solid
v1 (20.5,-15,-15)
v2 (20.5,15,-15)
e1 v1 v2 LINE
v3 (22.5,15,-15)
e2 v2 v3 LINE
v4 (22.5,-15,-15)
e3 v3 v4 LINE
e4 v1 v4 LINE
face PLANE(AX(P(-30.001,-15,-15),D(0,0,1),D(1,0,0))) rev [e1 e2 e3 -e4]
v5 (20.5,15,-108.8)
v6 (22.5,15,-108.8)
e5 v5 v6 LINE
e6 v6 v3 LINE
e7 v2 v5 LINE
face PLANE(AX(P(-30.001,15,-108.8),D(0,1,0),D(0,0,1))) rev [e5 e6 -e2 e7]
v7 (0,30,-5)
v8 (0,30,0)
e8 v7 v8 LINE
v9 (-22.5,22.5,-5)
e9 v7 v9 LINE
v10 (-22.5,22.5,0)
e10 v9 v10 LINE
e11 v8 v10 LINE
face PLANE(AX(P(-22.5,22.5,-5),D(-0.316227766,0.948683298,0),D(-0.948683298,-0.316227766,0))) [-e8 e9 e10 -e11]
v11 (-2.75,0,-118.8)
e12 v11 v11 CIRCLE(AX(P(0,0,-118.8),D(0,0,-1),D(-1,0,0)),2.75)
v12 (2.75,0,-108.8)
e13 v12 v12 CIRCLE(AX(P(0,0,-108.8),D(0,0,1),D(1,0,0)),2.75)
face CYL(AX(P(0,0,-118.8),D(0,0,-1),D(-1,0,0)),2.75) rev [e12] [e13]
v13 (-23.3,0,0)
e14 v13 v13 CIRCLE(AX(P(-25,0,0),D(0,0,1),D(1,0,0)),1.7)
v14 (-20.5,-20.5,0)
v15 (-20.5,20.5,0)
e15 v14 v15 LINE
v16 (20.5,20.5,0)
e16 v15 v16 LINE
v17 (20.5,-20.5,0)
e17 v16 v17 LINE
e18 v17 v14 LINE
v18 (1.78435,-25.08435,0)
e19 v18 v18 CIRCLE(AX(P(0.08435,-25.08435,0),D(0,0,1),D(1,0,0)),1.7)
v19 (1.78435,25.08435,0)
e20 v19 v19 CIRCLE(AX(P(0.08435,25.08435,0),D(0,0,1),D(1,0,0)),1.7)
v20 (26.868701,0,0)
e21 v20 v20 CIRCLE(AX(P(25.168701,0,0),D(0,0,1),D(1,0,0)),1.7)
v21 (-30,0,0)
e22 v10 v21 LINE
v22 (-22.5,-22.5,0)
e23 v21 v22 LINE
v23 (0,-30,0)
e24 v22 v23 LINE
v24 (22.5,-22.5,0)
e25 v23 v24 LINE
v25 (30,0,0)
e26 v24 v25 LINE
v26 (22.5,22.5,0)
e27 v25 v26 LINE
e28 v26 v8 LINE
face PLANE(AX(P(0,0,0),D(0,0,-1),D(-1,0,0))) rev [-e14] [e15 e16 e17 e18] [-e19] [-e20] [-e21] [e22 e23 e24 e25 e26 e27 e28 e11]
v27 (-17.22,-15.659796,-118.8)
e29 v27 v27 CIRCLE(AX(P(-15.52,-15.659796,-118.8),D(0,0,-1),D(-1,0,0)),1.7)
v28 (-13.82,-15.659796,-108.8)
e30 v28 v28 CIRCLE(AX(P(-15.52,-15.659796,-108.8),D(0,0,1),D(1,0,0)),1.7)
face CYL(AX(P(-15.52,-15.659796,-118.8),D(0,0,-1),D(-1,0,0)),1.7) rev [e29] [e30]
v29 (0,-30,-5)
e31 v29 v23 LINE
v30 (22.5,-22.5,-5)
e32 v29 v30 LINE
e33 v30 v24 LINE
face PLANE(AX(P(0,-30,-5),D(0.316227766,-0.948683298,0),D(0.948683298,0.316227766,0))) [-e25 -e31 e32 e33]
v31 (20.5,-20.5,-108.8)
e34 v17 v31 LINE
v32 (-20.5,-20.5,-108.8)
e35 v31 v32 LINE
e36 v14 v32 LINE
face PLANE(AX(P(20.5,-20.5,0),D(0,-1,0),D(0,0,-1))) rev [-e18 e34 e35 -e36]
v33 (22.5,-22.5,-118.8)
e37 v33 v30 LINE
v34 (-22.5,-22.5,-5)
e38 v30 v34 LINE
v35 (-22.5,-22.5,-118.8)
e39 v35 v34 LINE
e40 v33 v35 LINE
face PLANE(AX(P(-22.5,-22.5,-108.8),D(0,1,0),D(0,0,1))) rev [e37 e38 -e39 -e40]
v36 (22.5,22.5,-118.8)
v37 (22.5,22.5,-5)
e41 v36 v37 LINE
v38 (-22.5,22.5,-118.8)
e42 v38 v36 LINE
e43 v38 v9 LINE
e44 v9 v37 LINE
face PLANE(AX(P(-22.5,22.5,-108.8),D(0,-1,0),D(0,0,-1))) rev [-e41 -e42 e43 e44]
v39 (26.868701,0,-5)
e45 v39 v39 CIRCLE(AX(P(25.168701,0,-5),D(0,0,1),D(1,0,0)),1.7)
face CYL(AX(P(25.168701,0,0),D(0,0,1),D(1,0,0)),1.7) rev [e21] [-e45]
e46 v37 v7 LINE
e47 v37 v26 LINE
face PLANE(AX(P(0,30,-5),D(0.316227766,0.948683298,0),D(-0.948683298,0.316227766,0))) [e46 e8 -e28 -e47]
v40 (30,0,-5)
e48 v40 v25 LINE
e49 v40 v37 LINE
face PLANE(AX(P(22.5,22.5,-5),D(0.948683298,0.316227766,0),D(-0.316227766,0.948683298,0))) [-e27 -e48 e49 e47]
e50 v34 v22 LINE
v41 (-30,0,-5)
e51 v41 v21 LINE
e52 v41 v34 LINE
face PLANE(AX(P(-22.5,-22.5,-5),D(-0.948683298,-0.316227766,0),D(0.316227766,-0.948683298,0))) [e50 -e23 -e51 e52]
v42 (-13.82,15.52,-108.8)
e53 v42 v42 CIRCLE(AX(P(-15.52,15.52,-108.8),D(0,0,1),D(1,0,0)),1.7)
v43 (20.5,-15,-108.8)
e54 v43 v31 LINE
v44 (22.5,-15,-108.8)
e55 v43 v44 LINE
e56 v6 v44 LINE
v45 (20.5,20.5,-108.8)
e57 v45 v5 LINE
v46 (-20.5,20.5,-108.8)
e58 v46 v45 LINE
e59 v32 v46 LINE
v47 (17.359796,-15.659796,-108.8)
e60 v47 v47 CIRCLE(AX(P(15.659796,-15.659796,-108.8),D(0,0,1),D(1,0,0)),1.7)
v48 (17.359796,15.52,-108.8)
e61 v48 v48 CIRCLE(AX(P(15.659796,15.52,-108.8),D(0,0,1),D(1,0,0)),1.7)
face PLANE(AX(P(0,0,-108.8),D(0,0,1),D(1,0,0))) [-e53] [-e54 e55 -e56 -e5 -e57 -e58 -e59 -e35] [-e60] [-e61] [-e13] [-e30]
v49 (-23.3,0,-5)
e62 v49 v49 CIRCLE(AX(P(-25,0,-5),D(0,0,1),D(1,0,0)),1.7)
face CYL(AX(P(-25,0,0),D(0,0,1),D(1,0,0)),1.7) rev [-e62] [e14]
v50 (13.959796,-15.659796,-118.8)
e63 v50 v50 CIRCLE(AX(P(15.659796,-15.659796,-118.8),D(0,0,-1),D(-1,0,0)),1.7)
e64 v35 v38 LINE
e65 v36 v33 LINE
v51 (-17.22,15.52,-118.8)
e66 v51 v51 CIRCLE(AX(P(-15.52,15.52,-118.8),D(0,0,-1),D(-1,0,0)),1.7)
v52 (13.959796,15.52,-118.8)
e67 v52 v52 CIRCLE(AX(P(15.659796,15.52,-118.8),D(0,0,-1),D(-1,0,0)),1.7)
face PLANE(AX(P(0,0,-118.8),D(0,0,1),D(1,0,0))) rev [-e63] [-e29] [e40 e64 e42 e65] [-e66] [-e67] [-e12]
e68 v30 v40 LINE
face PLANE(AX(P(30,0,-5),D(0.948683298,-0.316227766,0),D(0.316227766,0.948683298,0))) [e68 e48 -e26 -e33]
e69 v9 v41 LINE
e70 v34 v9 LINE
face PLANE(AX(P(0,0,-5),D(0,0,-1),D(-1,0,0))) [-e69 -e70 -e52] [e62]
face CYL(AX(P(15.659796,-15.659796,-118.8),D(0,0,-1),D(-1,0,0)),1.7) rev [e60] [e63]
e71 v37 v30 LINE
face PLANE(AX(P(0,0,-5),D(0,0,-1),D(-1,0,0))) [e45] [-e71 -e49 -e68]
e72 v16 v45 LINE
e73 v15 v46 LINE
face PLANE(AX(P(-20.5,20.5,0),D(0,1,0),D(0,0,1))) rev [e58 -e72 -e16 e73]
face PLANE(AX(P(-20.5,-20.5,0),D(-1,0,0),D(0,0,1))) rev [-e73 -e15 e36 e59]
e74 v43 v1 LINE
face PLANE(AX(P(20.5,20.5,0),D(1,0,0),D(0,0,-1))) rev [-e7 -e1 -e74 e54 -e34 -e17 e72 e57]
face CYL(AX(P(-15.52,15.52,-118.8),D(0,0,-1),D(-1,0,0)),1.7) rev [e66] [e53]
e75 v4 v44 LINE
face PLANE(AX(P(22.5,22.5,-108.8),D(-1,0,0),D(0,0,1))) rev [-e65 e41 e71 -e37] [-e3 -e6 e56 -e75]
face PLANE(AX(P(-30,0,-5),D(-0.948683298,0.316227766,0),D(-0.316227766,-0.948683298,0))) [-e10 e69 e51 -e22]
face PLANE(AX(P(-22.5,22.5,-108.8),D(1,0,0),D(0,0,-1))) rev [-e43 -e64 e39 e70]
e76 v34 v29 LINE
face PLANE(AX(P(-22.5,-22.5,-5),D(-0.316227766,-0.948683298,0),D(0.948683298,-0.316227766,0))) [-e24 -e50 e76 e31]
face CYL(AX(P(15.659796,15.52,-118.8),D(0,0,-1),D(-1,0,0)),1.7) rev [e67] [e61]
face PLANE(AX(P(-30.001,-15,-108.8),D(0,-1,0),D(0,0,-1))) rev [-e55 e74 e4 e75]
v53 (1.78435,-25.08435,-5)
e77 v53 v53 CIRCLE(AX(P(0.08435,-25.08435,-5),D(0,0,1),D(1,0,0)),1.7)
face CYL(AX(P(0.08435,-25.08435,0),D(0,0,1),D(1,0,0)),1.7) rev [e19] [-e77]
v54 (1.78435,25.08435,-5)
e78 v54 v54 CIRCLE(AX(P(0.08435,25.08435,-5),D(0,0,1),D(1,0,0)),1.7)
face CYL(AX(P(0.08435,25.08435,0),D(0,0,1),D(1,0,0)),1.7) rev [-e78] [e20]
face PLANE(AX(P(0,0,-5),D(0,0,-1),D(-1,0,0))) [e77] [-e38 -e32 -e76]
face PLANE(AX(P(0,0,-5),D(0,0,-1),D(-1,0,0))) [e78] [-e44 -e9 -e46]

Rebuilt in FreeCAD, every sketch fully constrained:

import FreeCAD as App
import Part
import Sketcher

doc = App.newDocument("Part")
body = doc.addObject("PartDesign::Body", "Body")

# Sketch on XY plane
sketch1 = doc.addObject("Sketcher::SketchObject", "Sketch")
body.addObject(sketch1)
sketch1.AttachmentSupport = (doc.XY_Plane, [""])
sketch1.MapMode = "FlatFace"
sketch1.addGeometry([
    Part.LineSegment(App.Vector(-22.5, -22.5, 0), App.Vector(0, -30, 0)),  # 0
    Part.LineSegment(App.Vector(0, -30, 0), App.Vector(22.5, -22.5, 0)),  # 1
    Part.LineSegment(App.Vector(22.5, -22.5, 0), App.Vector(30, 0, 0)),  # 2
    Part.LineSegment(App.Vector(30, 0, 0), App.Vector(22.5, 22.5, 0)),  # 3
    Part.LineSegment(App.Vector(22.5, 22.5, 0), App.Vector(0, 30, 0)),  # 4
    Part.LineSegment(App.Vector(0, 30, 0), App.Vector(-22.5, 22.5, 0)),  # 5
    Part.LineSegment(App.Vector(-22.5, 22.5, 0), App.Vector(-30, 0, 0)),  # 6
    Part.LineSegment(App.Vector(-30, 0, 0), App.Vector(-22.5, -22.5, 0)),  # 7
], False)
sketch1.addConstraint([
    Sketcher.Constraint("Coincident", 0, 2, 1, 1),
    Sketcher.Constraint("Coincident", 1, 2, 2, 1),
    Sketcher.Constraint("Coincident", 2, 2, 3, 1),
    Sketcher.Constraint("Coincident", 3, 2, 4, 1),
    Sketcher.Constraint("Coincident", 4, 2, 5, 1),
    Sketcher.Constraint("Coincident", 5, 2, 6, 1),
    Sketcher.Constraint("Coincident", 6, 2, 7, 1),
    Sketcher.Constraint("Coincident", 7, 2, 0, 1),
    Sketcher.Constraint("Symmetric", 0, 2, 4, 2, -1, 1),
    Sketcher.Constraint("Symmetric", 1, 2, 5, 2, -1, 1),
    Sketcher.Constraint("Symmetric", 2, 2, 6, 2, -1, 1),
    Sketcher.Constraint("Symmetric", 3, 2, 7, 2, -1, 1),
    Sketcher.Constraint("Symmetric", 3, 2, 5, 2, -2),
    Sketcher.Constraint("PointOnObject", 0, 2, -2),
    Sketcher.Constraint("PointOnObject", 2, 2, -1),
    Sketcher.Constraint("Perpendicular", 0, 2),
    Sketcher.Constraint("Equal", 1, 2),
    Sketcher.Constraint("DistanceY", 0, 2, -1, 1, 30.0),
    Sketcher.Constraint("DistanceY", 1, 2, 3, 2, 45.0),
])
pad1 = doc.addObject("PartDesign::Pad", "Pad")
body.addObject(pad1)
pad1.Profile = sketch1
pad1.Length = 5
pad1.Reversed = True

# Sketch on XY plane
sketch2 = doc.addObject("Sketcher::SketchObject", "Sketch001")
body.addObject(sketch2)
sketch2.AttachmentSupport = (doc.XY_Plane, [""])
sketch2.MapMode = "FlatFace"
sketch2.addGeometry(Part.Circle(App.Vector(-25, 0, 0), App.Vector(0, 0, 1), 1.7), False)
sketch2.addConstraint([
    Sketcher.Constraint("PointOnObject", 0, 3, -1),
    Sketcher.Constraint("Diameter", 0, 3.4),
    Sketcher.Constraint("DistanceX", 0, 3, -1, 1, 25.0),
])
doc.recompute()
hole = doc.addObject("PartDesign::Hole", "Hole")
body.addObject(hole)
hole.Profile = sketch2
hole.ThreadType = "None"
hole.Diameter = 3.4
hole.DepthType = "ThroughAll"
doc.recompute()

datumline = doc.addObject("PartDesign::Line", "DatumLine")
body.addObject(datumline)
datumline.Placement = App.Placement(App.Vector(0.08435, 0, 0), App.Rotation(App.Vector(0, 0, 1), App.Vector(0, 0, 1)))
polarpattern = doc.addObject("PartDesign::PolarPattern", "PolarPattern")
body.addObject(polarpattern)
polarpattern.Originals = [hole]
polarpattern.Axis = (datumline, [""])
polarpattern.Angle = 360
polarpattern.Occurrences = 4
body.Tip = polarpattern

# Sketch on XY plane
sketch3 = doc.addObject("Sketcher::SketchObject", "Sketch002")
body.addObject(sketch3)
sketch3.AttachmentSupport = (doc.XY_Plane, [""])
sketch3.MapMode = "FlatFace"
sketch3.AttachmentOffset = App.Placement(App.Vector(0, 0, -5), App.Rotation())
sketch3.addGeometry([
    Part.LineSegment(App.Vector(-22.5, -22.5, 0), App.Vector(-22.5, 22.5, 0)),
    Part.LineSegment(App.Vector(-22.5, 22.5, 0), App.Vector(22.5, 22.5, 0)),
    Part.LineSegment(App.Vector(22.5, 22.5, 0), App.Vector(22.5, -22.5, 0)),
    Part.LineSegment(App.Vector(22.5, -22.5, 0), App.Vector(-22.5, -22.5, 0)),
], False)
sketch3.addConstraint([
    Sketcher.Constraint("Coincident", 0, 2, 1, 1),
    Sketcher.Constraint("Coincident", 1, 2, 2, 1),
    Sketcher.Constraint("Coincident", 2, 2, 3, 1),
    Sketcher.Constraint("Coincident", 3, 2, 0, 1),
    Sketcher.Constraint("Vertical", 0),
    Sketcher.Constraint("Horizontal", 1),
    Sketcher.Constraint("Vertical", 2),
    Sketcher.Constraint("Horizontal", 3),
    Sketcher.Constraint("Symmetric", 0, 2, 2, 2, -1, 1),
    Sketcher.Constraint("Equal", 3, 0),
    Sketcher.Constraint("DistanceX", 1, 1, 1, 2, 45.0),
])
pad2 = doc.addObject("PartDesign::Pad", "Pad001")
body.addObject(pad2)
pad2.Profile = sketch3
pad2.Length = 103.8
pad2.Reversed = True

# Sketch on XY plane
sketch4 = doc.addObject("Sketcher::SketchObject", "Sketch003")
body.addObject(sketch4)
sketch4.AttachmentSupport = (doc.XY_Plane, [""])
sketch4.MapMode = "FlatFace"
sketch4.AttachmentOffset = App.Placement(App.Vector(0, 0, -108.8), App.Rotation())
sketch4.addGeometry([
    Part.LineSegment(App.Vector(-20.5, -20.5, 0), App.Vector(-20.5, 20.5, 0)),
    Part.LineSegment(App.Vector(-20.5, 20.5, 0), App.Vector(20.5, 20.5, 0)),
    Part.LineSegment(App.Vector(20.5, 20.5, 0), App.Vector(20.5, -20.5, 0)),
    Part.LineSegment(App.Vector(20.5, -20.5, 0), App.Vector(-20.5, -20.5, 0)),
], False)
sketch4.addConstraint([
    Sketcher.Constraint("Coincident", 0, 2, 1, 1),
    Sketcher.Constraint("Coincident", 1, 2, 2, 1),
    Sketcher.Constraint("Coincident", 2, 2, 3, 1),
    Sketcher.Constraint("Coincident", 3, 2, 0, 1),
    Sketcher.Constraint("Vertical", 0),
    Sketcher.Constraint("Horizontal", 1),
    Sketcher.Constraint("Vertical", 2),
    Sketcher.Constraint("Horizontal", 3),
    Sketcher.Constraint("Symmetric", 0, 2, 2, 2, -1, 1),
    Sketcher.Constraint("Equal", 3, 0),
    Sketcher.Constraint("DistanceX", 1, 1, 1, 2, 41.0),
])
pocket1 = doc.addObject("PartDesign::Pocket", "Pocket")
body.addObject(pocket1)
pocket1.Profile = sketch4
pocket1.Type = "ThroughAll"
pocket1.Reversed = True

# Sketch on YZ plane
sketch5 = doc.addObject("Sketcher::SketchObject", "Sketch004")
body.addObject(sketch5)
sketch5.AttachmentSupport = (doc.YZ_Plane, [""])
sketch5.MapMode = "FlatFace"
sketch5.AttachmentOffset = App.Placement(App.Vector(0, 0, 22.5), App.Rotation())
sketch5.addGeometry([
    Part.LineSegment(App.Vector(-15, -15, 0), App.Vector(-15, -108.8, 0)),
    Part.LineSegment(App.Vector(-15, -108.8, 0), App.Vector(15, -108.8, 0)),
    Part.LineSegment(App.Vector(15, -108.8, 0), App.Vector(15, -15, 0)),
    Part.LineSegment(App.Vector(15, -15, 0), App.Vector(-15, -15, 0)),
], False)
sketch5.addConstraint([
    Sketcher.Constraint("Coincident", 0, 2, 1, 1),
    Sketcher.Constraint("Coincident", 1, 2, 2, 1),
    Sketcher.Constraint("Coincident", 2, 2, 3, 1),
    Sketcher.Constraint("Coincident", 3, 2, 0, 1),
    Sketcher.Constraint("Vertical", 0),
    Sketcher.Constraint("Horizontal", 1),
    Sketcher.Constraint("Vertical", 2),
    Sketcher.Constraint("Horizontal", 3),
    Sketcher.Constraint("DistanceX", 1, 1, 1, 2, 30.0),
    Sketcher.Constraint("DistanceY", 0, 2, 0, 1, 93.8),
    Sketcher.Constraint("DistanceX", 0, 2, -1, 1, 15.0),
    Sketcher.Constraint("DistanceY", 2, 2, -1, 1, 15.0),
])
pocket2 = doc.addObject("PartDesign::Pocket", "Pocket001")
body.addObject(pocket2)
pocket2.Profile = sketch5
pocket2.Type = "UpToFirst"

# Sketch on XY plane
sketch6 = doc.addObject("Sketcher::SketchObject", "Sketch005")
body.addObject(sketch6)
sketch6.AttachmentSupport = (doc.XY_Plane, [""])
sketch6.MapMode = "FlatFace"
sketch6.AttachmentOffset = App.Placement(App.Vector(0, 0, -108.8), App.Rotation())
sketch6.addGeometry([
    Part.LineSegment(App.Vector(-22.5, -22.5, 0), App.Vector(-22.5, 22.5, 0)),
    Part.LineSegment(App.Vector(-22.5, 22.5, 0), App.Vector(22.5, 22.5, 0)),
    Part.LineSegment(App.Vector(22.5, 22.5, 0), App.Vector(22.5, -22.5, 0)),
    Part.LineSegment(App.Vector(22.5, -22.5, 0), App.Vector(-22.5, -22.5, 0)),
], False)
sketch6.addConstraint([
    Sketcher.Constraint("Coincident", 0, 2, 1, 1),
    Sketcher.Constraint("Coincident", 1, 2, 2, 1),
    Sketcher.Constraint("Coincident", 2, 2, 3, 1),
    Sketcher.Constraint("Coincident", 3, 2, 0, 1),
    Sketcher.Constraint("Vertical", 0),
    Sketcher.Constraint("Horizontal", 1),
    Sketcher.Constraint("Vertical", 2),
    Sketcher.Constraint("Horizontal", 3),
    Sketcher.Constraint("Symmetric", 0, 2, 2, 2, -1, 1),
    Sketcher.Constraint("Equal", 3, 0),
    Sketcher.Constraint("DistanceX", 1, 1, 1, 2, 45.0),
])
pad3 = doc.addObject("PartDesign::Pad", "Pad002")
body.addObject(pad3)
pad3.Profile = sketch6
pad3.Length = 10
pad3.Reversed = True

# Sketch on XY plane
sketch7 = doc.addObject("Sketcher::SketchObject", "Sketch006")
body.addObject(sketch7)
sketch7.AttachmentSupport = (doc.XY_Plane, [""])
sketch7.MapMode = "FlatFace"
sketch7.AttachmentOffset = App.Placement(App.Vector(0, 0, -118.8), App.Rotation())
sketch7.addGeometry(Part.Circle(App.Vector(-15.52, 15.52, 0), App.Vector(0, 0, 1), 1.7), False)
sketch7.addConstraint([
    Sketcher.Constraint("Diameter", 0, 3.4),
    Sketcher.Constraint("DistanceX", 0, 3, -1, 1, 15.52),
    Sketcher.Constraint("DistanceY", -1, 1, 0, 3, 15.52),
])
doc.recompute()
hole2 = doc.addObject("PartDesign::Hole", "Hole001")
body.addObject(hole2)
hole2.Profile = sketch7
hole2.ThreadType = "None"
hole2.Diameter = 3.4
hole2.DepthType = "ThroughAll"
hole2.Reversed = True
doc.recompute()

datumline2 = doc.addObject("PartDesign::Line", "DatumLine001")
body.addObject(datumline2)
datumline2.Placement = App.Placement(App.Vector(0.069898, -0.069898, 0), App.Rotation(App.Vector(0, 0, 1), App.Vector(0, 0, 1)))
polarpattern2 = doc.addObject("PartDesign::PolarPattern", "PolarPattern001")
body.addObject(polarpattern2)
polarpattern2.Originals = [hole2]
polarpattern2.Axis = (datumline2, [""])
polarpattern2.Angle = 360
polarpattern2.Occurrences = 4
body.Tip = polarpattern2

# Sketch on XY plane
sketch8 = doc.addObject("Sketcher::SketchObject", "Sketch007")
body.addObject(sketch8)
sketch8.AttachmentSupport = (doc.XY_Plane, [""])
sketch8.MapMode = "FlatFace"
sketch8.AttachmentOffset = App.Placement(App.Vector(0, 0, -118.8), App.Rotation())
sketch8.addGeometry(Part.Circle(App.Vector(0, 0, 0), App.Vector(0, 0, 1), 2.75), False)
sketch8.addConstraint([
    Sketcher.Constraint("Coincident", 0, 3, -1, 1),
    Sketcher.Constraint("Diameter", 0, 5.5),
])
doc.recompute()
hole3 = doc.addObject("PartDesign::Hole", "Hole002")
body.addObject(hole3)
hole3.Profile = sketch8
hole3.ThreadType = "None"
hole3.Diameter = 5.5
hole3.DepthType = "ThroughAll"
hole3.Reversed = True

doc.recompute()
